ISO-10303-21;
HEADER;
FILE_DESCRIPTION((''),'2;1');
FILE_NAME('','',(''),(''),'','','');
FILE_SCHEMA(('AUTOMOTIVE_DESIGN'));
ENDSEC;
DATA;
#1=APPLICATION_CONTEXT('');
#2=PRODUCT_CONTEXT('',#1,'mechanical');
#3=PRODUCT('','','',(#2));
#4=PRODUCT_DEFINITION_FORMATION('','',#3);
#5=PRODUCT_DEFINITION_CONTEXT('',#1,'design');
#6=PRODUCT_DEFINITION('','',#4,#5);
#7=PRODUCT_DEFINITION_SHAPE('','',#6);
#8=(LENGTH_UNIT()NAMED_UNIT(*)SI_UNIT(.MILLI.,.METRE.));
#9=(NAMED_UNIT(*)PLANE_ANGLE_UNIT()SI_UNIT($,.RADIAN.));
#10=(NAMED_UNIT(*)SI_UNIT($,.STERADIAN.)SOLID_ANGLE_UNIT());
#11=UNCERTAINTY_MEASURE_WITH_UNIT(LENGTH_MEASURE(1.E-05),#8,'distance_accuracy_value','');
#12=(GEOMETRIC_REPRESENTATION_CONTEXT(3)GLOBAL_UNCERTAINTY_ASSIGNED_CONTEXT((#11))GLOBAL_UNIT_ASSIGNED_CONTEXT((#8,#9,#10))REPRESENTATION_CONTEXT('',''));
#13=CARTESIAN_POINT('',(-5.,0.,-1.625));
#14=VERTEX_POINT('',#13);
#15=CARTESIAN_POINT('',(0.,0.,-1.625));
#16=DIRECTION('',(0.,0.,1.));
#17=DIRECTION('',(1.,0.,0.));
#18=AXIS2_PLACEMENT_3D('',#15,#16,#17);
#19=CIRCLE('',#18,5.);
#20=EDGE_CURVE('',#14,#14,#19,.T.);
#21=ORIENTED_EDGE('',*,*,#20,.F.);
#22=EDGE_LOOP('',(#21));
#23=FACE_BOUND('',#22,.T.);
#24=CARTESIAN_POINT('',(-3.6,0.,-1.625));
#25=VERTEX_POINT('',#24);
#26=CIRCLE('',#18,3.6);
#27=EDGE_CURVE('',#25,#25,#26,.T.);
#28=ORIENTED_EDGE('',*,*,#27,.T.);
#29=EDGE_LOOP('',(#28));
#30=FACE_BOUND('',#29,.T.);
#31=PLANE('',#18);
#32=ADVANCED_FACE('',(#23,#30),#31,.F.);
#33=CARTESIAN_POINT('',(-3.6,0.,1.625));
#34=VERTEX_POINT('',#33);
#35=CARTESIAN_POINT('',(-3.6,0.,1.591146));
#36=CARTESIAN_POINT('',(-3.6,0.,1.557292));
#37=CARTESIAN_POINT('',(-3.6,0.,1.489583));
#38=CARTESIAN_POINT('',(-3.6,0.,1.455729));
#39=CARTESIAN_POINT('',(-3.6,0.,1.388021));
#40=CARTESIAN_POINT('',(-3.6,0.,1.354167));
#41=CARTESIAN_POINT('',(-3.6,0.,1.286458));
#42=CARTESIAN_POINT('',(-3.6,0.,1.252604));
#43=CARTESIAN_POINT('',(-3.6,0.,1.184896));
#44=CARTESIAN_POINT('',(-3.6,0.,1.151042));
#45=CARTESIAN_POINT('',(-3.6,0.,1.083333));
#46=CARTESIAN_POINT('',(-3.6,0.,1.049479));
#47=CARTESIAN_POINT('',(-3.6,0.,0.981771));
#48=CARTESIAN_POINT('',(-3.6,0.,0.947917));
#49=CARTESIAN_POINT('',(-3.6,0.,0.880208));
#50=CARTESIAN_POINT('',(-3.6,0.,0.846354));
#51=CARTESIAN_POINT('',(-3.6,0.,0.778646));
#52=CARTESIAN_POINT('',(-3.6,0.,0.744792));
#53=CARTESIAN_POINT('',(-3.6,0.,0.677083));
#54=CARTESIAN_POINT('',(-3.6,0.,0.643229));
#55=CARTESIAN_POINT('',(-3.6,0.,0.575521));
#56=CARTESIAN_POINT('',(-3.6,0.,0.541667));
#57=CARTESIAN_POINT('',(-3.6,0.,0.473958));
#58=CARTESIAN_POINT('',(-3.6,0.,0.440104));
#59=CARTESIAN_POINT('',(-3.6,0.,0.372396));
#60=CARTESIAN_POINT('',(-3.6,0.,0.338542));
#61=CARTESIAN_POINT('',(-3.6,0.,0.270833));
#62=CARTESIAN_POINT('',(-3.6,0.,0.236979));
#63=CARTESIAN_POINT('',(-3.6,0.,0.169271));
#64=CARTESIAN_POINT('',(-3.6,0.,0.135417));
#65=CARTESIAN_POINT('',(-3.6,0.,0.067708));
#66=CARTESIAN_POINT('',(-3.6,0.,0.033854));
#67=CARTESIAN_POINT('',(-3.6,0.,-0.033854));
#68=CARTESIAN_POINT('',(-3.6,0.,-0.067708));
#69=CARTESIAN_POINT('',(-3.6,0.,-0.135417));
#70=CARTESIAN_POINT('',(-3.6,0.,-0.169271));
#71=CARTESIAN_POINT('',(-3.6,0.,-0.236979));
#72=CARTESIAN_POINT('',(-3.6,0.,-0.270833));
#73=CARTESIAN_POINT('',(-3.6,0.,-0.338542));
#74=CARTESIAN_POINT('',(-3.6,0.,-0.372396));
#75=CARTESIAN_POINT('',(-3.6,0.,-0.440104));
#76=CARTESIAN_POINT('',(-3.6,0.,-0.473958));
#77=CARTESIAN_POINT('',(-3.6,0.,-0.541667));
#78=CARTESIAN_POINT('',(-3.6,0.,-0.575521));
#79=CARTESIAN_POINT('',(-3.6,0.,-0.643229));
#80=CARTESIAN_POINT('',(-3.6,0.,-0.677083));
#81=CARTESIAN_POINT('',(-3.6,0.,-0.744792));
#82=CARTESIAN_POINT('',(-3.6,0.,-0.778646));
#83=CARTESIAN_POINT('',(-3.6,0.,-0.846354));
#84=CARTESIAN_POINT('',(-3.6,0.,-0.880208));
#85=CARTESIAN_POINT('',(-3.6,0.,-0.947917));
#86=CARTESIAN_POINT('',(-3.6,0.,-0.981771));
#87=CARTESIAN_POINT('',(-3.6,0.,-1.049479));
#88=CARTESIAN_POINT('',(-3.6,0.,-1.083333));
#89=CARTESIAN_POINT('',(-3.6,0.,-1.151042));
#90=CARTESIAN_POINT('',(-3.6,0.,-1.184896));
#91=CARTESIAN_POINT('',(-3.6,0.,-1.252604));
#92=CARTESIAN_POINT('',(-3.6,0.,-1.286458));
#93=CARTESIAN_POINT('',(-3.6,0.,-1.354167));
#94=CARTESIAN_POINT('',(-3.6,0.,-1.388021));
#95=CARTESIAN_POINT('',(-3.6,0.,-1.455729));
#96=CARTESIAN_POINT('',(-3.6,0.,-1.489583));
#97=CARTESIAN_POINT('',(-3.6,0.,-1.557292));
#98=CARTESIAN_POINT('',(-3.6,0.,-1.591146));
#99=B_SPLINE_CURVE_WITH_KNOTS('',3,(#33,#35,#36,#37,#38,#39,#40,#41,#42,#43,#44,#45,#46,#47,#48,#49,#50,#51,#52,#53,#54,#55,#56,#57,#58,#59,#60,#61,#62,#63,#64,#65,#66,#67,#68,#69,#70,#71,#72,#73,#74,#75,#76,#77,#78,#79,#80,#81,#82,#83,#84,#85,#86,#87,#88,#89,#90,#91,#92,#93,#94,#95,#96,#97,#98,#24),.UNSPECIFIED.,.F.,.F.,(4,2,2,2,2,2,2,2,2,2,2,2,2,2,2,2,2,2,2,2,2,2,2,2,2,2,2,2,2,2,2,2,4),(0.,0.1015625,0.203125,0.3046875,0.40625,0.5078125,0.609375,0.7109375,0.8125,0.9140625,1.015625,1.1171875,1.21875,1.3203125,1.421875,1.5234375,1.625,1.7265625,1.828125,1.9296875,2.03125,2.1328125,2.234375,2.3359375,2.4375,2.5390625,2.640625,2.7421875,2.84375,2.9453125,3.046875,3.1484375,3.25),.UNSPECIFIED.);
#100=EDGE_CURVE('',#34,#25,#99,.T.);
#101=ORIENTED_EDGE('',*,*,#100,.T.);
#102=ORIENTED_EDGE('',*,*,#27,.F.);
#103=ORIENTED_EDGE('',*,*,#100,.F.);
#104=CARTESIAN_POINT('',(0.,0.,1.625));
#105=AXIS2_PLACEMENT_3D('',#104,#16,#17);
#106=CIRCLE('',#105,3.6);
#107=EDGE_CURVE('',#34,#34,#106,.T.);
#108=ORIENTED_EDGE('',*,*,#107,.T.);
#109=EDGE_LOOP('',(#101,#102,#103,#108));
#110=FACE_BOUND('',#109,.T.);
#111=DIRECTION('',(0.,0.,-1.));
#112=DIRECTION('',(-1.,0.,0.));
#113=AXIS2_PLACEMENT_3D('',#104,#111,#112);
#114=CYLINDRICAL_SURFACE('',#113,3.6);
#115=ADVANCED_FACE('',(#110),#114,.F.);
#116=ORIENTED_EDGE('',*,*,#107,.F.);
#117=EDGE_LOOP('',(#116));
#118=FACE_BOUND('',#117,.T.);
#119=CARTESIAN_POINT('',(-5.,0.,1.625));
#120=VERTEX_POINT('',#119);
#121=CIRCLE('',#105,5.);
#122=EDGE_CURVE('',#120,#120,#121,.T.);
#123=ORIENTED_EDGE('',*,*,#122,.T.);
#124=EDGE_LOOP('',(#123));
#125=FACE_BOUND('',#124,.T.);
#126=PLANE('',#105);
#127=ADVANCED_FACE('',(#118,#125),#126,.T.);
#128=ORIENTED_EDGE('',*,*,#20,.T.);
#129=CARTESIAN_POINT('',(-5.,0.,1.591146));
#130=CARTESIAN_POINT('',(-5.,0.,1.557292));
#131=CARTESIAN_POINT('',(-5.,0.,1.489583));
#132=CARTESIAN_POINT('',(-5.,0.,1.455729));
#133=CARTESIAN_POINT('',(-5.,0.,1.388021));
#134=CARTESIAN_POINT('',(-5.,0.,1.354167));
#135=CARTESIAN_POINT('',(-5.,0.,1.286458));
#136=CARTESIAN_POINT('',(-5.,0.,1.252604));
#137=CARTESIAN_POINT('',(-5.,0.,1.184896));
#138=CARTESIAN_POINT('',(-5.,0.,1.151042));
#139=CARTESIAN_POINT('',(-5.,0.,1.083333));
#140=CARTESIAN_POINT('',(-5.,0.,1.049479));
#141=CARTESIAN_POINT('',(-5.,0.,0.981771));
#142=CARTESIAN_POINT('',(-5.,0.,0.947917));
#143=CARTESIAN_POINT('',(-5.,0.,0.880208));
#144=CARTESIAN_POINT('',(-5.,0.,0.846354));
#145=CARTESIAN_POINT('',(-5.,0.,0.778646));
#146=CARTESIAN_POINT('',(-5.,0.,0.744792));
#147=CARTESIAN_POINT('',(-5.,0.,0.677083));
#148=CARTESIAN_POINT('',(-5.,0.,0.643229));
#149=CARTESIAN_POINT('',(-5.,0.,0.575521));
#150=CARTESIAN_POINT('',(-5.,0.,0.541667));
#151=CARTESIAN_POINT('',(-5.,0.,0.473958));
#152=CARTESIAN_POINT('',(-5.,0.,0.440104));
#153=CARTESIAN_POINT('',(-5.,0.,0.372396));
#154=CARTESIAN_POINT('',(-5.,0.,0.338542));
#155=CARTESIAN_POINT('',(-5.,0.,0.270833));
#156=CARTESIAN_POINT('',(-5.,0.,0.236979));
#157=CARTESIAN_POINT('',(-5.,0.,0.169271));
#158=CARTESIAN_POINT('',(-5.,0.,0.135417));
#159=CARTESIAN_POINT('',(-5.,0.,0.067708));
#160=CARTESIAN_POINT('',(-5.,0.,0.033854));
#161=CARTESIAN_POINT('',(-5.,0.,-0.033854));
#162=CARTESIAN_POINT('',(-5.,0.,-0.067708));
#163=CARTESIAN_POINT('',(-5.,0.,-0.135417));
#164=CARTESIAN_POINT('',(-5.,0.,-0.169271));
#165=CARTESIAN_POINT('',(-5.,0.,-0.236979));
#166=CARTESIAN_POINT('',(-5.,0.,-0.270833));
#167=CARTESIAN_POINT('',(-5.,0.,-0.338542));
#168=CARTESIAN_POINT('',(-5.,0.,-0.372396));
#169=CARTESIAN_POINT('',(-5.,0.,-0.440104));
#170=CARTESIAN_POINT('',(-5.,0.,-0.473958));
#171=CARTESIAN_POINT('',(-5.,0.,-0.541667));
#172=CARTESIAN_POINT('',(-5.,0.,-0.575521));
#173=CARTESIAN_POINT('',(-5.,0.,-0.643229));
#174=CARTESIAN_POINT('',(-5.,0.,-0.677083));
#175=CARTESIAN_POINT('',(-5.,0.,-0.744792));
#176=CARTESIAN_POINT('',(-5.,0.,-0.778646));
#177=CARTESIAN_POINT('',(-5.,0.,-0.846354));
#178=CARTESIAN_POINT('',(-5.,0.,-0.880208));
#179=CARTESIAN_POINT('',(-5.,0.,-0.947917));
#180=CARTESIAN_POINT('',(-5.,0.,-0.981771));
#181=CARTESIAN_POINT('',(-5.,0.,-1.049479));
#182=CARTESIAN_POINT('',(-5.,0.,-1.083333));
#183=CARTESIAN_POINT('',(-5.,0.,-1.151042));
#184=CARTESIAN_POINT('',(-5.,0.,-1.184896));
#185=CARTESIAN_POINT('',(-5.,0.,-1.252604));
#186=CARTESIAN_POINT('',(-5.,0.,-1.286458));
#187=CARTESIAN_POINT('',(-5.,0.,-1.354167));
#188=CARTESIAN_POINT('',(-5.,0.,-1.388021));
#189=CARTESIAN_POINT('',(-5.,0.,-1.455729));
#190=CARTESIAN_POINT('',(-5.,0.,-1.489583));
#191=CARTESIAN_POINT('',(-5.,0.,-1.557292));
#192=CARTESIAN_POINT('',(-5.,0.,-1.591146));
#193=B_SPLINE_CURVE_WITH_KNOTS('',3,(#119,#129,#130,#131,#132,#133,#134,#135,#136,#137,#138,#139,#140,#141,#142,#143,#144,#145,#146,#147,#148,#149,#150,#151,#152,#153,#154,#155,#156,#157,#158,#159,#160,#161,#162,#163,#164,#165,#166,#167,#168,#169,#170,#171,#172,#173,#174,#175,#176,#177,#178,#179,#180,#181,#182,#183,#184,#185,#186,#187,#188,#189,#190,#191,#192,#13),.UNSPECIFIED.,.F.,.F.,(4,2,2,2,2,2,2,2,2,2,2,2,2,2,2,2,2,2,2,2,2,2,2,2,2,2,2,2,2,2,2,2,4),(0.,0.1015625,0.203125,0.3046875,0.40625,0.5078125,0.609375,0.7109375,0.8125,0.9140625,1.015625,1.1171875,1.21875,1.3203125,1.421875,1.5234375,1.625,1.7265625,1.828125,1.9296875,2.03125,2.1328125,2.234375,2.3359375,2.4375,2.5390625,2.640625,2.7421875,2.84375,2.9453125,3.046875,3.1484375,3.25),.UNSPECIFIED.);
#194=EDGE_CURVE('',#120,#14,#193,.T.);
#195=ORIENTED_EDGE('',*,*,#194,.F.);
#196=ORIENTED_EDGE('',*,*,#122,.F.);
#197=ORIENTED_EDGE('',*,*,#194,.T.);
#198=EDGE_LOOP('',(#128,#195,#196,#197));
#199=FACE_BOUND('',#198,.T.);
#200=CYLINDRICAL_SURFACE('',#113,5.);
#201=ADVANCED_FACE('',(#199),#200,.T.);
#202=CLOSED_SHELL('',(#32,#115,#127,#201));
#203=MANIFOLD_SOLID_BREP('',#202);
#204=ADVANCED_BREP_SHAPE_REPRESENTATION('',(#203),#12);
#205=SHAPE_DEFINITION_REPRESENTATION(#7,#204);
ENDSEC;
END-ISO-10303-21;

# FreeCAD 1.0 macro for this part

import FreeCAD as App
import Part
import Sketcher
from FreeCAD import Vector
Q = App.Units.Quantity

doc = App.newDocument("Part")
params = doc.addObject("Spreadsheet::Sheet", "Params")
for row, (alias, value) in enumerate([
    ("sketch1_diameter", "10 mm"),
    ("sketch1_diameter2", "7.2 mm"),
    ("pad1_length", "3.25 mm"),
], start=1):
    params.set(f"A{row}", alias)
    params.set(f"B{row}", "=" + value)
    params.setAlias(f"B{row}", alias)

body = doc.addObject("PartDesign::Body", "Body")

# Sketch on XY plane
sketch1 = body.newObject("Sketcher::SketchObject", "Sketch")
sketch1.AttachmentSupport = (doc.getObject("XY_Plane"), [""])
sketch1.MapMode = "FlatFace"
sketch1.addGeometry([
    Part.Circle(Vector(0, 0, 0), Vector(0, 0, 1), 5),
    Part.Circle(Vector(0, 0, 0), Vector(0, 0, 1), 3.6),
], False)
sketch1.addConstraint([
    Sketcher.Constraint("Coincident", 0, 3, -1, 1),
    Sketcher.Constraint("Coincident", 1, 3, -1, 1),
    Sketcher.Constraint("Diameter", 0, Q("10 mm")),
    Sketcher.Constraint("Diameter", 1, Q("7.2 mm")),
])
sketch1.setExpression("Constraints[2]", "Params.sketch1_diameter")
sketch1.setExpression("Constraints[3]", "Params.sketch1_diameter2")
pad1 = body.newObject("PartDesign::Pad", "Pad")
pad1.Profile = sketch1
pad1.setExpression("Length", "Params.pad1_length")
pad1.Midplane = True

doc.recompute()
